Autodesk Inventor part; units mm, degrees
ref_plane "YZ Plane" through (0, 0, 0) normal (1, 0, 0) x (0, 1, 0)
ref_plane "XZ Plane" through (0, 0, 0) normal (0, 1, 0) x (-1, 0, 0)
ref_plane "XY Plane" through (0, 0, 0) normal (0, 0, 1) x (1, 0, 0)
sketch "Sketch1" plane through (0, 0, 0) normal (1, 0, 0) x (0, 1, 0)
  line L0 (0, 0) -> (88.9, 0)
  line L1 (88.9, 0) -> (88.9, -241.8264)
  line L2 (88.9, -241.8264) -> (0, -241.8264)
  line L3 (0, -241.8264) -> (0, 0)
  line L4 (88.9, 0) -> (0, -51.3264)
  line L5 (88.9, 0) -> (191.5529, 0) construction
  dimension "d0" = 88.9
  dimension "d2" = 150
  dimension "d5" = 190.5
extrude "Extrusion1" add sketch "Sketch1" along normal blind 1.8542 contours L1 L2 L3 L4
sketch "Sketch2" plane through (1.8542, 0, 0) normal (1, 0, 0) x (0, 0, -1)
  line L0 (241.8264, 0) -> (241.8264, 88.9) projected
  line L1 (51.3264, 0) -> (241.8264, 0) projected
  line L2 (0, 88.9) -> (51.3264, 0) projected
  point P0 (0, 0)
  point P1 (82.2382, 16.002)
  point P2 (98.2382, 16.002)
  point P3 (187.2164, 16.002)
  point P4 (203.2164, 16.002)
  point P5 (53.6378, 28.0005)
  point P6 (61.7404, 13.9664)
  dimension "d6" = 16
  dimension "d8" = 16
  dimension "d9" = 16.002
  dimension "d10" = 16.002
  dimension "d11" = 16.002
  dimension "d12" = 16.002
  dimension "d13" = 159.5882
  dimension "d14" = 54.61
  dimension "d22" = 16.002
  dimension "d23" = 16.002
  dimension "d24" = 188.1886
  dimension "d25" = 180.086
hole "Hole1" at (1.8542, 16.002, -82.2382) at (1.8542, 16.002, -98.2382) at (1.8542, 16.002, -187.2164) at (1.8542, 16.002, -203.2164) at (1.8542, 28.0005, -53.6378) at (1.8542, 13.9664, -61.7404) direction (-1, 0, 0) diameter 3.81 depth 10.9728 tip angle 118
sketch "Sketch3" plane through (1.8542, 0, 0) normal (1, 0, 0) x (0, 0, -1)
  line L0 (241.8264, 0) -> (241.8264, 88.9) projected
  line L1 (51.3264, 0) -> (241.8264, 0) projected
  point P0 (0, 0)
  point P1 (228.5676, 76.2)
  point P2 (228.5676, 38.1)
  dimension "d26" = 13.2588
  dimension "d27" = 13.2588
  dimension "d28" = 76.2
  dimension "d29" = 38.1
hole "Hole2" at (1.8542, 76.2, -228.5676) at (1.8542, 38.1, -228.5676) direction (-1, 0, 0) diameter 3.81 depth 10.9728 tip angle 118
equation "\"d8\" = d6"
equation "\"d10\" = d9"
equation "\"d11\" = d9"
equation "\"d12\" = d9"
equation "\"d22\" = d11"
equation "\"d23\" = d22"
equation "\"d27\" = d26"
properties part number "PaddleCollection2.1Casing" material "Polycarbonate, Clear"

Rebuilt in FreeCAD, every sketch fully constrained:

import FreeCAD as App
import Part
import Sketcher
Q = App.Units.Quantity


def add_polygon(sketch, points):
    """Adds a closed chain of lines whose ends are joined by coincident constraints."""
    first, n = sketch.GeometryCount, len(points)
    for a, b in zip(points, points[1:] + points[:1]):
        sketch.addGeometry(Part.LineSegment(App.Vector(*a, 0), App.Vector(*b, 0)), False)
    for i in range(n):
        sketch.addConstraint(Sketcher.Constraint("Coincident", first + i, 2, first + (i + 1) % n, 1))

doc = App.newDocument("Part")
body = doc.addObject("PartDesign::Body", "Body")

# Sketch on YZ plane
sketch1 = body.newObject("Sketcher::SketchObject", "Sketch")
sketch1.AttachmentSupport = (doc.getObject("YZ_Plane"), [""])
sketch1.MapMode = "FlatFace"
add_polygon(sketch1, [(89, -242), (89, 0), (0, -51), (0, -242)])  # lines 0-3
sketch1.addConstraint(Sketcher.Constraint("Vertical", 0))
sketch1.addConstraint(Sketcher.Constraint("Vertical", 2))
sketch1.addConstraint(Sketcher.Constraint("Horizontal", 3))
sketch1.addConstraint(Sketcher.Constraint("PointOnObject", 0, 2, -1))
sketch1.addConstraint(Sketcher.Constraint("PointOnObject", 1, 2, -2))
sketch1.addConstraint(Sketcher.Constraint("DistanceX", 3, 1, 3, 2, Q("3.5 in")))
sketch1.addConstraint(Sketcher.Constraint("DistanceY", 2, 2, 2, 1, Q("7.5 in")))
sketch1.addConstraint(Sketcher.Constraint("Angle", 1, Q("-150 deg")))
pad1 = body.newObject("PartDesign::Pad", "Pad")
pad1.Profile = sketch1
pad1.Length = Q("0.073 in")

# Sketch on YZ plane
sketch2 = body.newObject("Sketcher::SketchObject", "Sketch001")
sketch2.AttachmentSupport = (doc.getObject("YZ_Plane"), [""])
sketch2.MapMode = "FlatFace"
sketch2.AttachmentOffset = App.Placement(App.Vector(0, 0, 0.073 * 25.4), App.Rotation())
sketch2.addGeometry(Part.Circle(App.Vector(16, -82.2, 0), App.Vector(0, 0, 1), 1.9), False)
sketch2.addGeometry(Part.Circle(App.Vector(16, -98.2, 0), App.Vector(0, 0, 1), 1.9), False)
sketch2.addGeometry(Part.Circle(App.Vector(16, -187.2, 0), App.Vector(0, 0, 1), 1.9), False)
sketch2.addGeometry(Part.Circle(App.Vector(16, -203.2, 0), App.Vector(0, 0, 1), 1.9), False)
sketch2.addGeometry(Part.Circle(App.Vector(28, -53.6, 0), App.Vector(0, 0, 1), 1.9), False)
sketch2.addGeometry(Part.Circle(App.Vector(14, -61.7, 0), App.Vector(0, 0, 1), 1.9), False)
sketch2.addConstraint(Sketcher.Constraint("Equal", 0, 1))
sketch2.addConstraint(Sketcher.Constraint("Equal", 1, 2))
sketch2.addConstraint(Sketcher.Constraint("Equal", 2, 3))
sketch2.addConstraint(Sketcher.Constraint("Equal", 3, 4))
sketch2.addConstraint(Sketcher.Constraint("Equal", 4, 5))
sketch2.addConstraint(Sketcher.Constraint("Vertical", 0, 3, 1, 3))
sketch2.addConstraint(Sketcher.Constraint("Vertical", 1, 3, 2, 3))
sketch2.addConstraint(Sketcher.Constraint("Vertical", 2, 3, 3, 3))
sketch2.addConstraint(Sketcher.Constraint("Diameter", 0, Q("0.15 in")))
sketch2.addConstraint(Sketcher.Constraint("DistanceX", -1, 1, 0, 3, Q("0.63 in")))
sketch2.addConstraint(Sketcher.Constraint("DistanceY", 2, 3, 5, 3, Q("4.94 in")))
sketch2.addConstraint(Sketcher.Constraint("DistanceY", 2, 3, 0, 3, Q("4.133 in")))
sketch2.addConstraint(Sketcher.Constraint("DistanceY", 3, 3, 1, 3, Q("4.133 in")))
sketch2.addConstraint(Sketcher.Constraint("DistanceY", 0, 3, 4, 3, Q("1.126 in")))
sketch2.addConstraint(Sketcher.Constraint("DistanceY", 0, 3, -1, 1, Q("82.2382 mm")))
sketch2.addConstraint(Sketcher.Constraint("DistanceY", 1, 3, -1, 1, Q("98.2382 mm")))
sketch2.addConstraint(Sketcher.Constraint("DistanceX", -1, 1, 4, 3, Q("28.0005 mm")))
sketch2.addConstraint(Sketcher.Constraint("DistanceX", -1, 1, 5, 3, Q("13.9664 mm")))
doc.recompute()
hole = body.newObject("PartDesign::Hole", "Hole")
hole.Profile = sketch2
hole.ThreadType = "None"
hole.Diameter = Q("0.15 in")
hole.DepthType = "Dimension"
hole.Depth = Q("0.432 in")
hole.DrillPoint = "Angled"
hole.DrillPointAngle = 118

# Sketch on YZ plane
sketch3 = body.newObject("Sketcher::SketchObject", "Sketch002")
sketch3.AttachmentSupport = (doc.getObject("YZ_Plane"), [""])
sketch3.MapMode = "FlatFace"
sketch3.AttachmentOffset = App.Placement(App.Vector(0, 0, 0.073 * 25.4), App.Rotation())
sketch3.addGeometry(Part.Circle(App.Vector(76.2, -228.6, 0), App.Vector(0, 0, 1), 1.9), False)
sketch3.addGeometry(Part.Circle(App.Vector(38.1, -228.6, 0), App.Vector(0, 0, 1), 1.9), False)
sketch3.addConstraint(Sketcher.Constraint("Equal", 0, 1))
sketch3.addConstraint(Sketcher.Constraint("Horizontal", 0, 3, 1, 3))
sketch3.addConstraint(Sketcher.Constraint("Diameter", 0, Q("0.15 in")))
sketch3.addConstraint(Sketcher.Constraint("DistanceX", -1, 1, 0, 3, Q("3 in")))
sketch3.addConstraint(Sketcher.Constraint("DistanceX", -1, 1, 1, 3, Q("1.5 in")))
sketch3.addConstraint(Sketcher.Constraint("DistanceY", 0, 3, -1, 1, Q("228.5676 mm")))
doc.recompute()
hole2 = body.newObject("PartDesign::Hole", "Hole001")
hole2.Profile = sketch3
hole2.ThreadType = "None"
hole2.Diameter = Q("0.15 in")
hole2.DepthType = "Dimension"
hole2.Depth = Q("0.432 in")
hole2.DrillPoint = "Angled"
hole2.DrillPointAngle = 118

doc.recompute()
